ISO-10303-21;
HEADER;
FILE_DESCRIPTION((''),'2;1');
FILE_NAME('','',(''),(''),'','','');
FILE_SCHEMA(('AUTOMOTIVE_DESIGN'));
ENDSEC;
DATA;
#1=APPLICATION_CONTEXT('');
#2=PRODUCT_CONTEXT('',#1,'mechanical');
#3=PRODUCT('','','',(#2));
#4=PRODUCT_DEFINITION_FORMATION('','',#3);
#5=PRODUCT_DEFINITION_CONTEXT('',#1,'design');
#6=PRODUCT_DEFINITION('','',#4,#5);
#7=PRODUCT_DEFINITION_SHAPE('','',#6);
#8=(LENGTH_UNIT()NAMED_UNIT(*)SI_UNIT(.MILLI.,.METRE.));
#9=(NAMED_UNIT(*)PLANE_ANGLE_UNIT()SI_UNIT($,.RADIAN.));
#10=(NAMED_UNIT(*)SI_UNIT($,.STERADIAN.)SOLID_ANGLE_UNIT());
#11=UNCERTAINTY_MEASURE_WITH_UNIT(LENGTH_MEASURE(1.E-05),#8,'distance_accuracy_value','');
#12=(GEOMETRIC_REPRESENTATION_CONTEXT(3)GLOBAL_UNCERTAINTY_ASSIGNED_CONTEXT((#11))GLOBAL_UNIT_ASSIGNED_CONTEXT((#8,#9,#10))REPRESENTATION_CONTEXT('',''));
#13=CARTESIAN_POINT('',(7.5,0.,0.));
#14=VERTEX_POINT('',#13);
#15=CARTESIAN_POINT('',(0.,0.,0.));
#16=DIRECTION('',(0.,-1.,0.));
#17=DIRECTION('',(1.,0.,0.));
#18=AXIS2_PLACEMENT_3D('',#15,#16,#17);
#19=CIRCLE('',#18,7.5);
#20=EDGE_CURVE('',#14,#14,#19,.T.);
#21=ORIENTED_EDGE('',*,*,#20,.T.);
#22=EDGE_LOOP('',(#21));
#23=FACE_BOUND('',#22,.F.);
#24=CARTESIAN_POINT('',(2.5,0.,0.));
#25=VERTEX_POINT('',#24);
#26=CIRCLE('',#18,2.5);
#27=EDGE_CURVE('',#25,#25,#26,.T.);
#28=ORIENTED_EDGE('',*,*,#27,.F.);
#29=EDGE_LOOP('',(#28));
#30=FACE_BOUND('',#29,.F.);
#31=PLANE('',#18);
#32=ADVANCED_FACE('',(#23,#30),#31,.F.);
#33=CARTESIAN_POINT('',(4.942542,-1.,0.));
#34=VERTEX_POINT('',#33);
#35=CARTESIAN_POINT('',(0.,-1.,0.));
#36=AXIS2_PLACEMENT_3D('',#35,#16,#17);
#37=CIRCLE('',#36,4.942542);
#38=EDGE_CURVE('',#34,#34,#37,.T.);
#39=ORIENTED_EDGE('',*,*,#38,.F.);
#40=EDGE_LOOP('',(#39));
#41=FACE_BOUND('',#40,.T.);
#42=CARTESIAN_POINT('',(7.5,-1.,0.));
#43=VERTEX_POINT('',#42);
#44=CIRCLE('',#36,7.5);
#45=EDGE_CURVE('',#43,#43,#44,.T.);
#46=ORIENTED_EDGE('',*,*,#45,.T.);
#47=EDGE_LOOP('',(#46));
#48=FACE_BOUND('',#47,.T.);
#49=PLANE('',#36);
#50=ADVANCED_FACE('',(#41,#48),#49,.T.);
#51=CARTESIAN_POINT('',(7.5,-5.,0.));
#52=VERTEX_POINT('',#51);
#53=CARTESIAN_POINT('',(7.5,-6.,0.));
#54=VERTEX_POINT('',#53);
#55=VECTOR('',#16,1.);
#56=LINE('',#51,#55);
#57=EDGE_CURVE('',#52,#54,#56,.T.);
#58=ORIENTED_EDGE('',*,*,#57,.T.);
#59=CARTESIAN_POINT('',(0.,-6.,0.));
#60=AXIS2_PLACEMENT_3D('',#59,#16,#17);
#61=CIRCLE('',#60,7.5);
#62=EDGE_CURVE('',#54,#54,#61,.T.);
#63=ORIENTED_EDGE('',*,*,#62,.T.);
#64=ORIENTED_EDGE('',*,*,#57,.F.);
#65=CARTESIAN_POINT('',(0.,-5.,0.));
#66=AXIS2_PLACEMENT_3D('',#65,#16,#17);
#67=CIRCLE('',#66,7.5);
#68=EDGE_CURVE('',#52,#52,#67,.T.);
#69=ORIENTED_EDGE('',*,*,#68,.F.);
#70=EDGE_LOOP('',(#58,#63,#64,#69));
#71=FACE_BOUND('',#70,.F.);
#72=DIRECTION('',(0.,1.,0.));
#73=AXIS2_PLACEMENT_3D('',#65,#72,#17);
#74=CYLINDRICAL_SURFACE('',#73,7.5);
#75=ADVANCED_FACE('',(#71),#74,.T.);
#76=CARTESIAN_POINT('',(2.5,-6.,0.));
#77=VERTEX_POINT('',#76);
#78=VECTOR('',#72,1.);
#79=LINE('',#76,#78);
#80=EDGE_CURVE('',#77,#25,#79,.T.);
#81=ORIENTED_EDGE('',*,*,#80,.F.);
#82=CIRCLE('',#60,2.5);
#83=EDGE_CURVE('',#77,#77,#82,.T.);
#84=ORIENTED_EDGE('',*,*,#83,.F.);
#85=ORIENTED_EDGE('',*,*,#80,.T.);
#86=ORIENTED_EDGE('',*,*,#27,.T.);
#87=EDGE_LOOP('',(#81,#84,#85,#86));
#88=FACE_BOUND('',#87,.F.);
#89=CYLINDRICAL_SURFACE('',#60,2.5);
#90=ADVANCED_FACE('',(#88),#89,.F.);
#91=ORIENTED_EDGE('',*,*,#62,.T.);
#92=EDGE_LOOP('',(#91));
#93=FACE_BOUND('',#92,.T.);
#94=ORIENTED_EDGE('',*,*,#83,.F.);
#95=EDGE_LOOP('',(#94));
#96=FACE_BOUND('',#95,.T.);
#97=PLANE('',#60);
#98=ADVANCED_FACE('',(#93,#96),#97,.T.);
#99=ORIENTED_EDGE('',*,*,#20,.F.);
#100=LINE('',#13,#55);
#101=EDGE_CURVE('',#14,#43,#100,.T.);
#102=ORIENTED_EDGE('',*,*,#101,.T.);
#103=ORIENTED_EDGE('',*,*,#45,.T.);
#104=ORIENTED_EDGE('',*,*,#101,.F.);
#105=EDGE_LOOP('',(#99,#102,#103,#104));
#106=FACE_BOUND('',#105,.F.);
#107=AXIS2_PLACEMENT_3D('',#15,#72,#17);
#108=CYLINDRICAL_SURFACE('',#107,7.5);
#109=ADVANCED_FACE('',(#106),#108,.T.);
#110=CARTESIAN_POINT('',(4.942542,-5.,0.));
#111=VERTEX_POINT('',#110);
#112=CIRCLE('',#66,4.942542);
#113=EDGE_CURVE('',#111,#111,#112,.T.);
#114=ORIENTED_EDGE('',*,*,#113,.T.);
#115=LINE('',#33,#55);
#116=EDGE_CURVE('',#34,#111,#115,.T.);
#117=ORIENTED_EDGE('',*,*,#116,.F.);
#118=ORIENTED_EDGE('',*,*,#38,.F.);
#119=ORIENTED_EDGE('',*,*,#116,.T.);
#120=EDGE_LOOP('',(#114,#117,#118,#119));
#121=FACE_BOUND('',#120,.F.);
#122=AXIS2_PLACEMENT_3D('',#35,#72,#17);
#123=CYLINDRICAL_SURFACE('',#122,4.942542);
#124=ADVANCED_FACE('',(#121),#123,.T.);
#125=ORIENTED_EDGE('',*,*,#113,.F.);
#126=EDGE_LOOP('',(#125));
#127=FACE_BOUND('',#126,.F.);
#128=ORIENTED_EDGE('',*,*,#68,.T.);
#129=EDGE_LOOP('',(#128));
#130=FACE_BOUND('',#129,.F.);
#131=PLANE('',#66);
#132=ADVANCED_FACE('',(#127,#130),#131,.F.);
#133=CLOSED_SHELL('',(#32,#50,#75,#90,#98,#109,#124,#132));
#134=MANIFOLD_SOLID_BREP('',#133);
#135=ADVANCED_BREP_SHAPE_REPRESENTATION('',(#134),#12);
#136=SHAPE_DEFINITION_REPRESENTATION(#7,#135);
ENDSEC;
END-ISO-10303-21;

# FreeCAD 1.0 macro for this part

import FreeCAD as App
import Part
import Sketcher
Q = App.Units.Quantity

doc = App.newDocument("Part")
body = doc.addObject("PartDesign::Body", "Body")

# Sketch on XZ plane
sketch1 = doc.addObject("Sketcher::SketchObject", "Sketch")
body.addObject(sketch1)
sketch1.AttachmentSupport = (doc.XZ_Plane, [""])
sketch1.MapMode = "FlatFace"
sketch1.addGeometry(Part.Circle(App.Vector(0, 0, 0), App.Vector(0, 0, 1), 7.5), False)
sketch1.addConstraint([
    Sketcher.Constraint("Coincident", 0, 3, -1, 1),
    Sketcher.Constraint("Diameter", 0, Q("15 mm")),
])
pad1 = doc.addObject("PartDesign::Pad", "Pad")
body.addObject(pad1)
pad1.Profile = sketch1
pad1.Length = 1

# Sketch on XZ plane
sketch2 = doc.addObject("Sketcher::SketchObject", "Sketch001")
body.addObject(sketch2)
sketch2.AttachmentSupport = (doc.XZ_Plane, [""])
sketch2.MapMode = "FlatFace"
sketch2.AttachmentOffset = App.Placement(App.Vector(0, 0, 1), App.Rotation())
sketch2.addGeometry(Part.Circle(App.Vector(0, 0, 0), App.Vector(0, 0, 1), 4.942542), False)
sketch2.addConstraint([
    Sketcher.Constraint("Coincident", 0, 3, -1, 1),
    Sketcher.Constraint("Diameter", 0, Q("9.885084 mm")),
])
pad2 = doc.addObject("PartDesign::Pad", "Pad001")
body.addObject(pad2)
pad2.Profile = sketch2
pad2.Length = 4

# Sketch on XZ plane
sketch3 = doc.addObject("Sketcher::SketchObject", "Sketch002")
body.addObject(sketch3)
sketch3.AttachmentSupport = (doc.XZ_Plane, [""])
sketch3.MapMode = "FlatFace"
sketch3.AttachmentOffset = App.Placement(App.Vector(0, 0, 5), App.Rotation())
sketch3.addGeometry(Part.Circle(App.Vector(0, 0, 0), App.Vector(0, 0, 1), 7.5), False)
sketch3.addConstraint([
    Sketcher.Constraint("Coincident", 0, 3, -1, 1),
    Sketcher.Constraint("Diameter", 0, Q("15 mm")),
])
pad3 = doc.addObject("PartDesign::Pad", "Pad002")
body.addObject(pad3)
pad3.Profile = sketch3
pad3.Length = 1

# Sketch on XZ plane
sketch4 = doc.addObject("Sketcher::SketchObject", "Sketch003")
body.addObject(sketch4)
sketch4.AttachmentSupport = (doc.XZ_Plane, [""])
sketch4.MapMode = "FlatFace"
sketch4.AttachmentOffset = App.Placement(App.Vector(0, 0, 6), App.Rotation())
sketch4.addGeometry(Part.Circle(App.Vector(0, 0, 0), App.Vector(0, 0, 1), 2.5), False)
sketch4.addConstraint([
    Sketcher.Constraint("Coincident", 0, 3, -1, 1),
    Sketcher.Constraint("Diameter", 0, Q("5 mm")),
])
pocket1 = doc.addObject("PartDesign::Pocket", "Pocket")
body.addObject(pocket1)
pocket1.Profile = sketch4
pocket1.Length = 25

doc.recompute()
